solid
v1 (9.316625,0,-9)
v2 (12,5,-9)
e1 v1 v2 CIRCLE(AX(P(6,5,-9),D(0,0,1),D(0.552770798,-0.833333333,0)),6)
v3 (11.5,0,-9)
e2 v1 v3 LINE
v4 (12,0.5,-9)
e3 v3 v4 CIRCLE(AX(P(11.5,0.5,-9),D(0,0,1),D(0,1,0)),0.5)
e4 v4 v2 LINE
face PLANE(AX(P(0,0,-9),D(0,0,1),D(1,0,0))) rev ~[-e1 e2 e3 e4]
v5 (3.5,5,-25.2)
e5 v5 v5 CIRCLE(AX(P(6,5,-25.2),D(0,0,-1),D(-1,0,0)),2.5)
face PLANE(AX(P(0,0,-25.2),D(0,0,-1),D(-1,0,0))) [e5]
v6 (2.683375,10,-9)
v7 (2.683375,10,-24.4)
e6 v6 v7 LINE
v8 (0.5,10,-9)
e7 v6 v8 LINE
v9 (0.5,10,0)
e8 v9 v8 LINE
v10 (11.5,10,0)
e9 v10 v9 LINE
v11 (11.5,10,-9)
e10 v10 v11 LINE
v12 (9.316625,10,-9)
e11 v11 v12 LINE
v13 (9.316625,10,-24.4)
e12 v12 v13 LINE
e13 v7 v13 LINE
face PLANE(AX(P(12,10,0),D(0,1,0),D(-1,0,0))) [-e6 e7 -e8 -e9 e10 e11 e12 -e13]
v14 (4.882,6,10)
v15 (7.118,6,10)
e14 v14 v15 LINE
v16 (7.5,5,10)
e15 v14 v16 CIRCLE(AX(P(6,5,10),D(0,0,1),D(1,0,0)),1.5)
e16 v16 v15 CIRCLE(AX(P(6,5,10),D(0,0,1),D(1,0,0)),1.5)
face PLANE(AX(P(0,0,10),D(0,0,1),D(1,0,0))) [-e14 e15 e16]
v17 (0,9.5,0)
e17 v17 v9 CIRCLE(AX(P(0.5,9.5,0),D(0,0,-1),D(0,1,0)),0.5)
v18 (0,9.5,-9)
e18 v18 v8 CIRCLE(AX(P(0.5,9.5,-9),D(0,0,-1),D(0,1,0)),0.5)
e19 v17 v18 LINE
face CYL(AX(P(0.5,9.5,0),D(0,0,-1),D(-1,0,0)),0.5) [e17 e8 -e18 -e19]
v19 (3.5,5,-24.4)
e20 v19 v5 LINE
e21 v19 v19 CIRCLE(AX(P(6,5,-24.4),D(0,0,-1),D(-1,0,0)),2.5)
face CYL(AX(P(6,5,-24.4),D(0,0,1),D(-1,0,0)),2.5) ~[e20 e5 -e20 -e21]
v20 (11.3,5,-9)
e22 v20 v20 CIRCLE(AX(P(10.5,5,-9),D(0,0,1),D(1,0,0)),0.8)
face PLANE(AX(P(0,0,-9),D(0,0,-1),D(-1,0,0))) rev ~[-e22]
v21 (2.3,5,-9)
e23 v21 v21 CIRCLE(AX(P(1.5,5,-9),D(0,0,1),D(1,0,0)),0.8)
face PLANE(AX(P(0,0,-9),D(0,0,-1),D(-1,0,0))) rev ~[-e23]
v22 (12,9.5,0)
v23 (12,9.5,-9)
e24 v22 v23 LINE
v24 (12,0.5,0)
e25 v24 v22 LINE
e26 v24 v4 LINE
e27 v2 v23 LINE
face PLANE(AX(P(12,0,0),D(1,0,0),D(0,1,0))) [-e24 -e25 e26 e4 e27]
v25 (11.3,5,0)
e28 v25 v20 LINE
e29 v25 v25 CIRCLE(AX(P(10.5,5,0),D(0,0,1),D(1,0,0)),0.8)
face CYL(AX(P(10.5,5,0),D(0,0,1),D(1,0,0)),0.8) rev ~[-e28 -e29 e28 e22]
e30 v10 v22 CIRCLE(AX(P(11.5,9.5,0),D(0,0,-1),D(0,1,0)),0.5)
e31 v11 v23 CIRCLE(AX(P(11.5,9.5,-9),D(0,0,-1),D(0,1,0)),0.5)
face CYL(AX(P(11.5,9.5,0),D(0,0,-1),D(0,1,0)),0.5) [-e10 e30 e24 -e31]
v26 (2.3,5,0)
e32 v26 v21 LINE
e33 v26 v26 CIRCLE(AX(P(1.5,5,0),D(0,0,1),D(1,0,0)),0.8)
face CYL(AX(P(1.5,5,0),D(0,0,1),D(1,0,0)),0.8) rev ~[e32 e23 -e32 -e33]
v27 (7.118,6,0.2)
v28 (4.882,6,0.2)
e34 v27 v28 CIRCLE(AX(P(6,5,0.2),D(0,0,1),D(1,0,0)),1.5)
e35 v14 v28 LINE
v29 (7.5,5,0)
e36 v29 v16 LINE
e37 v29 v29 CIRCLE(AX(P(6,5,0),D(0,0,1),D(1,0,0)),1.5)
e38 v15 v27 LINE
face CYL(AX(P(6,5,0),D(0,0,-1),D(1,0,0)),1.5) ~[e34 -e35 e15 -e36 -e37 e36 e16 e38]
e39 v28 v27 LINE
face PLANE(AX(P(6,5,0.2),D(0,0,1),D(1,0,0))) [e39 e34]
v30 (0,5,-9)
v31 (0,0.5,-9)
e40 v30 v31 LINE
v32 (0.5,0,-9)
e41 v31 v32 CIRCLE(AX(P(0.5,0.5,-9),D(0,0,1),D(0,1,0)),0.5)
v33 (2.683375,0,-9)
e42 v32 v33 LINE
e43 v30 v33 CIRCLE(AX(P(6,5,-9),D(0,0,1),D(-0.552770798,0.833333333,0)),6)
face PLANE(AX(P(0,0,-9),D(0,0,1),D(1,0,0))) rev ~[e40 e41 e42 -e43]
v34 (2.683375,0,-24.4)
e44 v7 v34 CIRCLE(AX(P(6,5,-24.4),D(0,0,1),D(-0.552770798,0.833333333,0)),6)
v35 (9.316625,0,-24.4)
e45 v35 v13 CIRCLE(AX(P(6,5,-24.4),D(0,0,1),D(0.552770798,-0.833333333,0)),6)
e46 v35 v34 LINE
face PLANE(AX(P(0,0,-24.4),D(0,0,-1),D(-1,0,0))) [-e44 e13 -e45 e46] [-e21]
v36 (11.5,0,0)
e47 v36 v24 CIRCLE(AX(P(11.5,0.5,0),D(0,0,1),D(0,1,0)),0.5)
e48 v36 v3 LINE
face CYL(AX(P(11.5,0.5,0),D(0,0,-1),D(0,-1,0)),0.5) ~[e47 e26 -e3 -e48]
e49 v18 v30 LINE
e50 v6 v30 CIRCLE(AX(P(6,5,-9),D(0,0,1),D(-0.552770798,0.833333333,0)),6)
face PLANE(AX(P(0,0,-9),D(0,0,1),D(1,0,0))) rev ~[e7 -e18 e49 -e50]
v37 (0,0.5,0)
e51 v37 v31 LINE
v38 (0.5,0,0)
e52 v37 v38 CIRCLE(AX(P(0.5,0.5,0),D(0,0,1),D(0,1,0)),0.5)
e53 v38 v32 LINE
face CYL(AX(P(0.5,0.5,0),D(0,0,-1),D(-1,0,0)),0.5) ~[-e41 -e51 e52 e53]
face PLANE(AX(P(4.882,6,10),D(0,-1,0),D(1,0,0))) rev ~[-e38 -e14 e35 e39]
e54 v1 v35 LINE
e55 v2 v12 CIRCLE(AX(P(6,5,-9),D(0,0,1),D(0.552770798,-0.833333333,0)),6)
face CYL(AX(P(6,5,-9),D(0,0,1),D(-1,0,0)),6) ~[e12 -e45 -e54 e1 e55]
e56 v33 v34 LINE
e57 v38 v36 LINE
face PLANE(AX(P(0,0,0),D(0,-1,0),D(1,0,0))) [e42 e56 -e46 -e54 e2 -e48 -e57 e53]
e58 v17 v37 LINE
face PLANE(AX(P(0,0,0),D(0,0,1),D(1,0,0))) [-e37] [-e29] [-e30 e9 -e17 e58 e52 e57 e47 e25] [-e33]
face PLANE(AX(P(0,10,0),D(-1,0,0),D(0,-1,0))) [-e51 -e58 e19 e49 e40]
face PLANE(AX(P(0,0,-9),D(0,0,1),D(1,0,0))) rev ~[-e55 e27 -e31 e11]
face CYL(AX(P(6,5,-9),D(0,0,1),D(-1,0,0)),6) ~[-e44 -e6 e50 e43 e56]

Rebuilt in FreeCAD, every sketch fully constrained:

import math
import FreeCAD as App
import Part
import Sketcher


def edges_at(feature, points):
    """Names of the edges that pass closest to the given points."""
    edges = feature.Shape.Edges
    near = lambda p: min(range(len(edges)), key=lambda i: edges[i].distToShape(Part.Vertex(*p))[0])
    return sorted({f"Edge{near(p) + 1}" for p in points})


def add_polygon(sketch, points):
    """Adds a closed chain of lines whose ends are joined by coincident constraints."""
    first, n = sketch.GeometryCount, len(points)
    for a, b in zip(points, points[1:] + points[:1]):
        sketch.addGeometry(Part.LineSegment(App.Vector(*a, 0), App.Vector(*b, 0)), False)
    for i in range(n):
        sketch.addConstraint(Sketcher.Constraint("Coincident", first + i, 2, first + (i + 1) % n, 1))

doc = App.newDocument("Part")
params = doc.addObject("Spreadsheet::Sheet", "Params")
for row, (alias, value) in enumerate([
    ("sketch1_width", "12 mm"),
    ("sketch1_height", "10 mm"),
    ("pad1_length", "9 mm"),
    ("sketch2_diameter", "1.6 mm"),
    ("sketch3_diameter", "3 mm"),
    ("pad2_length", "10 mm"),
    ("sketch4_radius", "1.5 mm"),
    ("pocket2_length", "9.8 mm"),
    ("sketch5_radius", "6 mm"),
    ("pad3_length", "15.4 mm"),
    ("sketch6_diameter", "5 mm"),
    ("pad4_length", "0.8 mm"),
    ("fillet_radius", "0.5 mm"),
], start=1):
    params.set(f"A{row}", alias)
    params.set(f"B{row}", "=" + value)
    params.setAlias(f"B{row}", alias)

body = doc.addObject("PartDesign::Body", "Body")

# Sketch on XY plane
sketch1 = body.newObject("Sketcher::SketchObject", "Sketch")
sketch1.AttachmentSupport = (doc.getObject("XY_Plane"), [""])
sketch1.MapMode = "FlatFace"
add_polygon(sketch1, [(0, 10), (0, 0), (12, 0), (12, 10)])  # lines 0-3
sketch1.addConstraint(Sketcher.Constraint("Vertical", 0))
sketch1.addConstraint(Sketcher.Constraint("Horizontal", 1))
sketch1.addConstraint(Sketcher.Constraint("Vertical", 2))
sketch1.addConstraint(Sketcher.Constraint("Horizontal", 3))
sketch1.addConstraint(Sketcher.Constraint("Coincident", 0, 2, -1, 1))
sketch1.addConstraint(Sketcher.Constraint("DistanceX", 1, 1, 1, 2, 12.0))
sketch1.addConstraint(Sketcher.Constraint("DistanceY", 0, 2, 0, 1, 10.0))
sketch1.setExpression("Constraints[9]", "Params.sketch1_width")
sketch1.setExpression("Constraints[10]", "Params.sketch1_height")
pad1 = body.newObject("PartDesign::Pad", "Pad")
pad1.Profile = sketch1
pad1.setExpression("Length", "Params.pad1_length")
pad1.Reversed = True

# Sketch on XY plane
sketch2 = body.newObject("Sketcher::SketchObject", "Sketch001")
sketch2.AttachmentSupport = (doc.getObject("XY_Plane"), [""])
sketch2.MapMode = "FlatFace"
sketch2.addGeometry(Part.Circle(App.Vector(1.5, 5, 0), App.Vector(0, 0, 1), 0.8), False)
sketch2.addGeometry(Part.Circle(App.Vector(10.5, 5, 0), App.Vector(0, 0, 1), 0.8), False)
sketch2.addConstraint(Sketcher.Constraint("Equal", 0, 1))
sketch2.addConstraint(Sketcher.Constraint("Horizontal", 0, 3, 1, 3))
sketch2.addConstraint(Sketcher.Constraint("Diameter", 0, 1.6))
sketch2.addConstraint(Sketcher.Constraint("DistanceX", 0, 3, 1, 3, 9.0))
sketch2.addConstraint(Sketcher.Constraint("DistanceY", -1, 1, 0, 3, 5.0))
sketch2.addConstraint(Sketcher.Constraint("DistanceX", -1, 1, 0, 3, 1.5))
sketch2.setExpression("Constraints[2]", "Params.sketch2_diameter")
pocket1 = body.newObject("PartDesign::Pocket", "Pocket")
pocket1.Profile = sketch2
pocket1.Type = "ThroughAll"

# Sketch on XY plane
sketch3 = body.newObject("Sketcher::SketchObject", "Sketch002")
sketch3.AttachmentSupport = (doc.getObject("XY_Plane"), [""])
sketch3.MapMode = "FlatFace"
sketch3.addGeometry(Part.Circle(App.Vector(6, 5, 0), App.Vector(0, 0, 1), 1.5), False)
sketch3.addConstraint(Sketcher.Constraint("Diameter", 0, 3.0))
sketch3.addConstraint(Sketcher.Constraint("DistanceX", -1, 1, 0, 3, 6.0))
sketch3.addConstraint(Sketcher.Constraint("DistanceY", -1, 1, 0, 3, 5.0))
sketch3.setExpression("Constraints[0]", "Params.sketch3_diameter")
pad2 = body.newObject("PartDesign::Pad", "Pad001")
pad2.Profile = sketch3
pad2.setExpression("Length", "Params.pad2_length")

# Sketch on XY plane
sketch4 = body.newObject("Sketcher::SketchObject", "Sketch003")
sketch4.AttachmentSupport = (doc.getObject("XY_Plane"), [""])
sketch4.MapMode = "FlatFace"
sketch4.AttachmentOffset = App.Placement(App.Vector(0, 0, 10), App.Rotation())
sketch4.addGeometry(Part.LineSegment(App.Vector(4.9, 6, 0), App.Vector(7.1, 6, 0)), False)
sketch4.addGeometry(Part.ArcOfCircle(Part.Circle(App.Vector(6, 5, 0), App.Vector(0, 0, 1), 1.5), math.radians(42), math.radians(138)), False)
sketch4.addConstraint(Sketcher.Constraint("Coincident", 0, 1, 1, 2))
sketch4.addConstraint(Sketcher.Constraint("Coincident", 1, 1, 0, 2))
sketch4.addConstraint(Sketcher.Constraint("Horizontal", 0))
sketch4.addConstraint(Sketcher.Constraint("DistanceY", 1, 3, 0, 1, 1.0))
sketch4.addConstraint(Sketcher.Constraint("Radius", 1, 1.5))
sketch4.addConstraint(Sketcher.Constraint("DistanceX", -1, 1, 1, 3, 6.0))
sketch4.addConstraint(Sketcher.Constraint("DistanceY", -1, 1, 1, 3, 5.0))
sketch4.setExpression("Constraints[4]", "Params.sketch4_radius")
pocket2 = body.newObject("PartDesign::Pocket", "Pocket001")
pocket2.Profile = sketch4
pocket2.setExpression("Length", "Params.pocket2_length")

# Sketch on XY plane
sketch5 = body.newObject("Sketcher::SketchObject", "Sketch004")
sketch5.AttachmentSupport = (doc.getObject("XY_Plane"), [""])
sketch5.MapMode = "FlatFace"
sketch5.AttachmentOffset = App.Placement(App.Vector(0, 0, -9), App.Rotation())
sketch5.addGeometry(Part.ArcOfCircle(Part.Circle(App.Vector(6, 5, 0), App.Vector(0, 0, 1), 6), math.radians(124), math.radians(236)), False)
sketch5.addGeometry(Part.LineSegment(App.Vector(3, 10, 0), App.Vector(9, 10, 0)), False)
sketch5.addGeometry(Part.ArcOfCircle(Part.Circle(App.Vector(6, 5, 0), App.Vector(0, 0, 1), 6), math.radians(-56), math.radians(56)), False)
sketch5.addGeometry(Part.LineSegment(App.Vector(9, 0, 0), App.Vector(3, 0, 0)), False)
sketch5.addConstraint(Sketcher.Constraint("Coincident", 0, 1, 1, 1))
sketch5.addConstraint(Sketcher.Constraint("Coincident", 1, 2, 2, 2))
sketch5.addConstraint(Sketcher.Constraint("Coincident", 2, 1, 3, 1))
sketch5.addConstraint(Sketcher.Constraint("Coincident", 3, 2, 0, 2))
sketch5.addConstraint(Sketcher.Constraint("Horizontal", 1))
sketch5.addConstraint(Sketcher.Constraint("Horizontal", 3))
sketch5.addConstraint(Sketcher.Constraint("Coincident", 2, 3, 0, 3))
sketch5.addConstraint(Sketcher.Constraint("Equal", 0, 2))
sketch5.addConstraint(Sketcher.Constraint("PointOnObject", 2, 1, -1))
sketch5.addConstraint(Sketcher.Constraint("Vertical", 1, 2, 2, 1))
sketch5.addConstraint(Sketcher.Constraint("Radius", 0, 6.0))
sketch5.addConstraint(Sketcher.Constraint("DistanceX", -1, 1, 0, 3, 6.0))
sketch5.addConstraint(Sketcher.Constraint("DistanceY", -1, 1, 0, 3, 5.0))
sketch5.setExpression("Constraints[10]", "Params.sketch5_radius")
pad3 = body.newObject("PartDesign::Pad", "Pad002")
pad3.Profile = sketch5
pad3.setExpression("Length", "Params.pad3_length")
pad3.Reversed = True

# Sketch on XY plane
sketch6 = body.newObject("Sketcher::SketchObject", "Sketch005")
sketch6.AttachmentSupport = (doc.getObject("XY_Plane"), [""])
sketch6.MapMode = "FlatFace"
sketch6.AttachmentOffset = App.Placement(App.Vector(0, 0, -24.4), App.Rotation())
sketch6.addGeometry(Part.Circle(App.Vector(6, 5, 0), App.Vector(0, 0, 1), 2.5), False)
sketch6.addConstraint(Sketcher.Constraint("Diameter", 0, 5.0))
sketch6.addConstraint(Sketcher.Constraint("DistanceY", -1, 1, 0, 3, 5.0))
sketch6.addConstraint(Sketcher.Constraint("DistanceX", -1, 1, 0, 3, 6.0))
sketch6.setExpression("Constraints[0]", "Params.sketch6_diameter")
pad4 = body.newObject("PartDesign::Pad", "Pad003")
pad4.Profile = sketch6
pad4.setExpression("Length", "Params.pad4_length")
pad4.Reversed = True
doc.recompute()

fillet = body.newObject("PartDesign::Fillet", "Fillet")
fillet.Base = (pad4, edges_at(pad4, [
    (12, 10, -4.5),
    (0, 10, -4.5),
    (12, 0, -4.5),
    (0, 0, -4.5),
]))
fillet.setExpression("Radius", "Params.fillet_radius")

doc.recompute()
